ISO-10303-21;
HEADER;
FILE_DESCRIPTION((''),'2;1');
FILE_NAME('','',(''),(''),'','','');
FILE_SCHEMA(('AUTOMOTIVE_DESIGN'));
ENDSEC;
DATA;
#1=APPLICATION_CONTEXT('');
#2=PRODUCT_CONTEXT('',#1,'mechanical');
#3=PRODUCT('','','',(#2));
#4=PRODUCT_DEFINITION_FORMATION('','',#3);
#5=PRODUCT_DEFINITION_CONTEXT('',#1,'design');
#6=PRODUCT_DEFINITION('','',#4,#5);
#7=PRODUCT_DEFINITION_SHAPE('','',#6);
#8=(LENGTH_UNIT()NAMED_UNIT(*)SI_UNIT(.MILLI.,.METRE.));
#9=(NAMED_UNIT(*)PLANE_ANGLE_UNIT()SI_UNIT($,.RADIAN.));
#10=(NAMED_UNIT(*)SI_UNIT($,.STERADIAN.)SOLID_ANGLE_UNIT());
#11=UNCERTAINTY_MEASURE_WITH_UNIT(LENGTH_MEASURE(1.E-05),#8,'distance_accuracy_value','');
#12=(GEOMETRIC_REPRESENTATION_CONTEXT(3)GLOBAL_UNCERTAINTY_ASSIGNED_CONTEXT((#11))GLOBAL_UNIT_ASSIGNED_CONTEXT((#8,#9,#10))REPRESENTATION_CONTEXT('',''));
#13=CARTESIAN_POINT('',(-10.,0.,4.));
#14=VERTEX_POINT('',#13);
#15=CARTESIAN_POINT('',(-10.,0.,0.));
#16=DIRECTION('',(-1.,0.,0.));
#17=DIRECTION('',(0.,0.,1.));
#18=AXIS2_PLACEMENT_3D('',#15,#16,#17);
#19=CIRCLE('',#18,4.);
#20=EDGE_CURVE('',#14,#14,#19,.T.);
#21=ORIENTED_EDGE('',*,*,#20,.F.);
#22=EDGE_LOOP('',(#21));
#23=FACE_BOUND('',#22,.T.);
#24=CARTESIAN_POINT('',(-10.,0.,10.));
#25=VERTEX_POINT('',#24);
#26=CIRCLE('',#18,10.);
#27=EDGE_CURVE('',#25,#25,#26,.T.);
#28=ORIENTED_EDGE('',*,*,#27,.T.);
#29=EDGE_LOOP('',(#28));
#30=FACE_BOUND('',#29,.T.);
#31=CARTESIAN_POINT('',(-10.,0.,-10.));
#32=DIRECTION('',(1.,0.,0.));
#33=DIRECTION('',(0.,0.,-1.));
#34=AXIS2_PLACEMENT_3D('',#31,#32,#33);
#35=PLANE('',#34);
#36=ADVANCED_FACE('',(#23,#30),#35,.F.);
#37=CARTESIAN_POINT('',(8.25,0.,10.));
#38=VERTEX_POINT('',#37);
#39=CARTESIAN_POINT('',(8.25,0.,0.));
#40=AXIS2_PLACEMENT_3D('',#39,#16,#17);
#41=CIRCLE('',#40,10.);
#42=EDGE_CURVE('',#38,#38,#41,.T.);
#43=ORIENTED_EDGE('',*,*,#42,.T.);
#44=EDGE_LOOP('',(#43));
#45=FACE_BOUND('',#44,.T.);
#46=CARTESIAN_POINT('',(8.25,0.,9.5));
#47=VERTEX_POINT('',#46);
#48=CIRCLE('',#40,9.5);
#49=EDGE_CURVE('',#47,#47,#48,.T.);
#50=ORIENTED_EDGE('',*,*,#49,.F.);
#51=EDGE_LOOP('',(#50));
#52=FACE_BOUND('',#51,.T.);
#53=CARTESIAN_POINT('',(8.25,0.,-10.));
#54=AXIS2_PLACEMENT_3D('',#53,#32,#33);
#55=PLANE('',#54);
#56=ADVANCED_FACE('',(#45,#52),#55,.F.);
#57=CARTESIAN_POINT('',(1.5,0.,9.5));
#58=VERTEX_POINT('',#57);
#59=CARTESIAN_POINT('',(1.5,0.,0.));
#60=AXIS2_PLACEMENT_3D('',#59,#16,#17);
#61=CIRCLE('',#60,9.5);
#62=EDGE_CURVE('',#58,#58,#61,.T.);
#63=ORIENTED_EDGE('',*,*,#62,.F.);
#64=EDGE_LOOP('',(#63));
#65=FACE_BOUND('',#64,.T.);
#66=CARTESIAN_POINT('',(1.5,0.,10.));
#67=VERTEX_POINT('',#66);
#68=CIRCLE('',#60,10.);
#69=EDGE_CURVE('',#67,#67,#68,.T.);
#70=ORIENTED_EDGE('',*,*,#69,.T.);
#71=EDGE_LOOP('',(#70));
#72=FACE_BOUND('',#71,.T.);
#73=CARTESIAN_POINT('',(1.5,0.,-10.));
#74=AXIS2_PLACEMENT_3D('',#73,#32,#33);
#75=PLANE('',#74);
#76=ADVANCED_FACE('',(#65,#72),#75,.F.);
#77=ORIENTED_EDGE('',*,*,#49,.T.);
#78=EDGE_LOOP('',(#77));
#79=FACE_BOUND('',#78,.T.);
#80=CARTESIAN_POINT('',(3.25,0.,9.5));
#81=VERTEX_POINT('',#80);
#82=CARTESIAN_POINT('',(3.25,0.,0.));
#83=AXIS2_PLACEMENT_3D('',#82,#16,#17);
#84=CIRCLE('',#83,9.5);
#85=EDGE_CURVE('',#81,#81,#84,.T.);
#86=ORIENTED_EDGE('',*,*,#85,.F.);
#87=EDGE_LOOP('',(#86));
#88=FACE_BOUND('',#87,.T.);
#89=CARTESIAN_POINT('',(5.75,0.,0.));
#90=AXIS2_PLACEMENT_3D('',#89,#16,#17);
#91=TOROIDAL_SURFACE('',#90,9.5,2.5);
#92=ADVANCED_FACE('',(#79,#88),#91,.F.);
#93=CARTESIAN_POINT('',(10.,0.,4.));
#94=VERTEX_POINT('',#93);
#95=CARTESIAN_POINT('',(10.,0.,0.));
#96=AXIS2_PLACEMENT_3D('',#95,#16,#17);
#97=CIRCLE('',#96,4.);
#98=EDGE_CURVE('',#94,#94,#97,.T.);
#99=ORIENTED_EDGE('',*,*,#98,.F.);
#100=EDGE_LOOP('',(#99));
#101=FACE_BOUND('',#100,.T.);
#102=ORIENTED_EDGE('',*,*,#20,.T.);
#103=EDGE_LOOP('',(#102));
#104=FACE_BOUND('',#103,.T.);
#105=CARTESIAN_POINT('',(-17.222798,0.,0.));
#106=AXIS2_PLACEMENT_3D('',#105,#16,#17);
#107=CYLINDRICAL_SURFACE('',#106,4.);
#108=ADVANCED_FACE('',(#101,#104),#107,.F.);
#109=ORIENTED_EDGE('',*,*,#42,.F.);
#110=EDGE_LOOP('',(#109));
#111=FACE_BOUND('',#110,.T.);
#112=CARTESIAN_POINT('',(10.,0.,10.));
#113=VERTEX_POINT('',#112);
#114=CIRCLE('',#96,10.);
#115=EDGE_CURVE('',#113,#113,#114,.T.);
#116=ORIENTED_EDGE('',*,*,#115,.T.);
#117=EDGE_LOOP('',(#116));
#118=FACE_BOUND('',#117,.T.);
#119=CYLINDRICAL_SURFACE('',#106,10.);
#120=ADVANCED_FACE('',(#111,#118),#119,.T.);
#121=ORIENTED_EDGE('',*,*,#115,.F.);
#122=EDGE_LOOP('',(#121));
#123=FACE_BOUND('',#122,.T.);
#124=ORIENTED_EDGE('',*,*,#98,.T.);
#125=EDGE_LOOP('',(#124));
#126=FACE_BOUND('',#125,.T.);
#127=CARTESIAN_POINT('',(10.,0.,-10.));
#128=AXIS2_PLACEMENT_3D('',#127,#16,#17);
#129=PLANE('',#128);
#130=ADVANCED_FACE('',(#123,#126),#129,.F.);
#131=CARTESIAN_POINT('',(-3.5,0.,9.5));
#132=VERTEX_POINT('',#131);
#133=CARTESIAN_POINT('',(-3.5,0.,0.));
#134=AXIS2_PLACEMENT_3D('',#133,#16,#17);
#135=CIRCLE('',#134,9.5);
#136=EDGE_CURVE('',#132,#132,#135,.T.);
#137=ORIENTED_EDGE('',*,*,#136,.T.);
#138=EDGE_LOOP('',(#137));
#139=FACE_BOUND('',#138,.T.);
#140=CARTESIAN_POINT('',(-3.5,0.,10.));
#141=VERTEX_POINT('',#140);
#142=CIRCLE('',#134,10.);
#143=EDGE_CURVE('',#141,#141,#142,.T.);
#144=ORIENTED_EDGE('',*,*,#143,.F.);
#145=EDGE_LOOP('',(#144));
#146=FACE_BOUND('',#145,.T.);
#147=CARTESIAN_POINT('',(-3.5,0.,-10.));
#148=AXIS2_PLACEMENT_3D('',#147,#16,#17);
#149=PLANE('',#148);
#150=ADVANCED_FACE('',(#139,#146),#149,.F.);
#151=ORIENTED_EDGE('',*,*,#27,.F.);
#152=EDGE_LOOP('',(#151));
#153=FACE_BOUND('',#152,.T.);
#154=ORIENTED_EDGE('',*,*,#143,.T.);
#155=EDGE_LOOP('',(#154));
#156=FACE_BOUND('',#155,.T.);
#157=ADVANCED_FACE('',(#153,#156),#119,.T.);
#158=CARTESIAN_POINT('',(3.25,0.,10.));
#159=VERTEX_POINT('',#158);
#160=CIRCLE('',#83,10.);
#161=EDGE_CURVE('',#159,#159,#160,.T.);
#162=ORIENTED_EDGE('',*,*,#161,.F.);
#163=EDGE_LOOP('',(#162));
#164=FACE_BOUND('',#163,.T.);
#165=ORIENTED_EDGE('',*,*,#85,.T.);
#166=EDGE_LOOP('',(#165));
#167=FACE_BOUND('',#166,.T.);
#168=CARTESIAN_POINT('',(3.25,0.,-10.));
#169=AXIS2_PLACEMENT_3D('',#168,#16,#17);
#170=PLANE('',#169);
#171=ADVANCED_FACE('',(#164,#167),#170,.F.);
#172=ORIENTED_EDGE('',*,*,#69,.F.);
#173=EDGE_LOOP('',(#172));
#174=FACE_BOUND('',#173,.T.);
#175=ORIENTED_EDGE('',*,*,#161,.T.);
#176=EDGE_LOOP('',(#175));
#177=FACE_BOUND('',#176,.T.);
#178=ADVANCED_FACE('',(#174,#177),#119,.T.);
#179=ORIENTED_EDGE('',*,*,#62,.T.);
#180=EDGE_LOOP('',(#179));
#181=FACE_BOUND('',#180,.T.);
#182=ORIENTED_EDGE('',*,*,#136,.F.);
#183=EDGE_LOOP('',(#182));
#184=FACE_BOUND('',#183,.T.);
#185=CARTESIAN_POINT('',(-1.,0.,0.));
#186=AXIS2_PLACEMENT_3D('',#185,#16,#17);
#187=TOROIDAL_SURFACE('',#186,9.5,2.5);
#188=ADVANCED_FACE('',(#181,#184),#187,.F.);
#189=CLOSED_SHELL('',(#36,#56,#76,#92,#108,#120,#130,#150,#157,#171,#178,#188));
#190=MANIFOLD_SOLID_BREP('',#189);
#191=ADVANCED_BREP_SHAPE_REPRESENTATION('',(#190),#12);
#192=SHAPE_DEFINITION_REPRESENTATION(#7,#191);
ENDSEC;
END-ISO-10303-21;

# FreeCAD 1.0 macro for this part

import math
import FreeCAD as App
import Part
import Sketcher

V = App.Vector
Q = App.Units.Quantity

doc = App.newDocument("Part")
body = doc.addObject("PartDesign::Body", "Body")

sketch1 = doc.addObject("Sketcher::SketchObject", "Sketch")
body.addObject(sketch1)
sketch1.AttachmentSupport = (doc.XZ_Plane, [""])
sketch1.MapMode = "FlatFace"
sketch1.addGeometry(Part.LineSegment(V(-3.5, -9.5, 0), V(-3.5, -10, 0)), False)
sketch1.addGeometry(Part.LineSegment(V(-3.5, -10, 0), V(-10, -10, 0)), False)
sketch1.addGeometry(Part.LineSegment(V(-10, -10, 0), V(-10, -4, 0)), False)
sketch1.addGeometry(Part.LineSegment(V(-10, -4, 0), V(10, -4, 0)), False)
sketch1.addGeometry(Part.LineSegment(V(10, -4, 0), V(10, -10, 0)), False)
sketch1.addGeometry(Part.LineSegment(V(10, -10, 0), V(8.25, -10, 0)), False)
sketch1.addGeometry(Part.LineSegment(V(8.25, -10, 0), V(8.25, -9.5, 0)), False)
sketch1.addGeometry(Part.ArcOfCircle(Part.Circle(V(5.75, -9.5, 0), V(0, 0, 1), 2.5), math.radians(0), math.radians(180)), False)
sketch1.addGeometry(Part.LineSegment(V(3.25, -9.5, 0), V(3.25, -10, 0)), False)
sketch1.addGeometry(Part.LineSegment(V(3.25, -10, 0), V(1.5, -10, 0)), False)
sketch1.addGeometry(Part.LineSegment(V(1.5, -10, 0), V(1.5, -9.5, 0)), False)
sketch1.addGeometry(Part.ArcOfCircle(Part.Circle(V(-1, -9.5, 0), V(0, 0, 1), 2.5), math.radians(0), math.radians(180)), False)
sketch1.addConstraint(Sketcher.Constraint("Coincident", 0, 2, 1, 1))
sketch1.addConstraint(Sketcher.Constraint("Coincident", 1, 2, 2, 1))
sketch1.addConstraint(Sketcher.Constraint("Coincident", 2, 2, 3, 1))
sketch1.addConstraint(Sketcher.Constraint("Coincident", 3, 2, 4, 1))
sketch1.addConstraint(Sketcher.Constraint("Coincident", 4, 2, 5, 1))
sketch1.addConstraint(Sketcher.Constraint("Coincident", 5, 2, 6, 1))
sketch1.addConstraint(Sketcher.Constraint("Tangent", 6, 2, 7, 1))
sketch1.addConstraint(Sketcher.Constraint("Tangent", 7, 2, 8, 1))
sketch1.addConstraint(Sketcher.Constraint("Coincident", 8, 2, 9, 1))
sketch1.addConstraint(Sketcher.Constraint("Coincident", 9, 2, 10, 1))
sketch1.addConstraint(Sketcher.Constraint("Tangent", 10, 2, 11, 1))
sketch1.addConstraint(Sketcher.Constraint("Tangent", 11, 2, 0, 1))
sketch1.addConstraint(Sketcher.Constraint("Vertical", 0))
sketch1.addConstraint(Sketcher.Constraint("Horizontal", 1))
sketch1.addConstraint(Sketcher.Constraint("Vertical", 2))
sketch1.addConstraint(Sketcher.Constraint("Horizontal", 3))
sketch1.addConstraint(Sketcher.Constraint("Vertical", 4))
sketch1.addConstraint(Sketcher.Constraint("Horizontal", 5))
sketch1.addConstraint(Sketcher.Constraint("Vertical", 6))
sketch1.addConstraint(Sketcher.Constraint("Vertical", 8))
sketch1.addConstraint(Sketcher.Constraint("Horizontal", 9))
sketch1.addConstraint(Sketcher.Constraint("Vertical", 10))
sketch1.addConstraint(Sketcher.Constraint("Equal", 7, 11))
sketch1.addConstraint(Sketcher.Constraint("Symmetric", 1, 2, 4, 2, -2))
sketch1.addConstraint(Sketcher.Constraint("Horizontal", 7, 3, 11, 3))
sketch1.addConstraint(Sketcher.Constraint("Horizontal", 5, 2, 8, 2))
sketch1.addConstraint(Sketcher.Constraint("Equal", 5, 9))
sketch1.addConstraint(Sketcher.Constraint("Radius", 7, Q("2.5 mm")))
sketch1.addConstraint(Sketcher.Constraint("DistanceX", 3, 1, 3, 2, Q("20 mm")))
sketch1.addConstraint(Sketcher.Constraint("DistanceY", 2, 1, 2, 2, Q("6 mm")))
sketch1.addConstraint(Sketcher.Constraint("DistanceX", 1, 2, 1, 1, Q("6.5 mm")))
sketch1.addConstraint(Sketcher.Constraint("DistanceY", 0, 2, 0, 1, Q("0.5 mm")))
sketch1.addConstraint(Sketcher.Constraint("DistanceY", 0, 2, -1, 1, Q("10 mm")))
revolution = doc.addObject("PartDesign::Revolution", "Revolution")
body.addObject(revolution)
revolution.Profile = sketch1
revolution.ReferenceAxis = (sketch1, ["H_Axis"])
revolution.Angle = 360

doc.recompute()
